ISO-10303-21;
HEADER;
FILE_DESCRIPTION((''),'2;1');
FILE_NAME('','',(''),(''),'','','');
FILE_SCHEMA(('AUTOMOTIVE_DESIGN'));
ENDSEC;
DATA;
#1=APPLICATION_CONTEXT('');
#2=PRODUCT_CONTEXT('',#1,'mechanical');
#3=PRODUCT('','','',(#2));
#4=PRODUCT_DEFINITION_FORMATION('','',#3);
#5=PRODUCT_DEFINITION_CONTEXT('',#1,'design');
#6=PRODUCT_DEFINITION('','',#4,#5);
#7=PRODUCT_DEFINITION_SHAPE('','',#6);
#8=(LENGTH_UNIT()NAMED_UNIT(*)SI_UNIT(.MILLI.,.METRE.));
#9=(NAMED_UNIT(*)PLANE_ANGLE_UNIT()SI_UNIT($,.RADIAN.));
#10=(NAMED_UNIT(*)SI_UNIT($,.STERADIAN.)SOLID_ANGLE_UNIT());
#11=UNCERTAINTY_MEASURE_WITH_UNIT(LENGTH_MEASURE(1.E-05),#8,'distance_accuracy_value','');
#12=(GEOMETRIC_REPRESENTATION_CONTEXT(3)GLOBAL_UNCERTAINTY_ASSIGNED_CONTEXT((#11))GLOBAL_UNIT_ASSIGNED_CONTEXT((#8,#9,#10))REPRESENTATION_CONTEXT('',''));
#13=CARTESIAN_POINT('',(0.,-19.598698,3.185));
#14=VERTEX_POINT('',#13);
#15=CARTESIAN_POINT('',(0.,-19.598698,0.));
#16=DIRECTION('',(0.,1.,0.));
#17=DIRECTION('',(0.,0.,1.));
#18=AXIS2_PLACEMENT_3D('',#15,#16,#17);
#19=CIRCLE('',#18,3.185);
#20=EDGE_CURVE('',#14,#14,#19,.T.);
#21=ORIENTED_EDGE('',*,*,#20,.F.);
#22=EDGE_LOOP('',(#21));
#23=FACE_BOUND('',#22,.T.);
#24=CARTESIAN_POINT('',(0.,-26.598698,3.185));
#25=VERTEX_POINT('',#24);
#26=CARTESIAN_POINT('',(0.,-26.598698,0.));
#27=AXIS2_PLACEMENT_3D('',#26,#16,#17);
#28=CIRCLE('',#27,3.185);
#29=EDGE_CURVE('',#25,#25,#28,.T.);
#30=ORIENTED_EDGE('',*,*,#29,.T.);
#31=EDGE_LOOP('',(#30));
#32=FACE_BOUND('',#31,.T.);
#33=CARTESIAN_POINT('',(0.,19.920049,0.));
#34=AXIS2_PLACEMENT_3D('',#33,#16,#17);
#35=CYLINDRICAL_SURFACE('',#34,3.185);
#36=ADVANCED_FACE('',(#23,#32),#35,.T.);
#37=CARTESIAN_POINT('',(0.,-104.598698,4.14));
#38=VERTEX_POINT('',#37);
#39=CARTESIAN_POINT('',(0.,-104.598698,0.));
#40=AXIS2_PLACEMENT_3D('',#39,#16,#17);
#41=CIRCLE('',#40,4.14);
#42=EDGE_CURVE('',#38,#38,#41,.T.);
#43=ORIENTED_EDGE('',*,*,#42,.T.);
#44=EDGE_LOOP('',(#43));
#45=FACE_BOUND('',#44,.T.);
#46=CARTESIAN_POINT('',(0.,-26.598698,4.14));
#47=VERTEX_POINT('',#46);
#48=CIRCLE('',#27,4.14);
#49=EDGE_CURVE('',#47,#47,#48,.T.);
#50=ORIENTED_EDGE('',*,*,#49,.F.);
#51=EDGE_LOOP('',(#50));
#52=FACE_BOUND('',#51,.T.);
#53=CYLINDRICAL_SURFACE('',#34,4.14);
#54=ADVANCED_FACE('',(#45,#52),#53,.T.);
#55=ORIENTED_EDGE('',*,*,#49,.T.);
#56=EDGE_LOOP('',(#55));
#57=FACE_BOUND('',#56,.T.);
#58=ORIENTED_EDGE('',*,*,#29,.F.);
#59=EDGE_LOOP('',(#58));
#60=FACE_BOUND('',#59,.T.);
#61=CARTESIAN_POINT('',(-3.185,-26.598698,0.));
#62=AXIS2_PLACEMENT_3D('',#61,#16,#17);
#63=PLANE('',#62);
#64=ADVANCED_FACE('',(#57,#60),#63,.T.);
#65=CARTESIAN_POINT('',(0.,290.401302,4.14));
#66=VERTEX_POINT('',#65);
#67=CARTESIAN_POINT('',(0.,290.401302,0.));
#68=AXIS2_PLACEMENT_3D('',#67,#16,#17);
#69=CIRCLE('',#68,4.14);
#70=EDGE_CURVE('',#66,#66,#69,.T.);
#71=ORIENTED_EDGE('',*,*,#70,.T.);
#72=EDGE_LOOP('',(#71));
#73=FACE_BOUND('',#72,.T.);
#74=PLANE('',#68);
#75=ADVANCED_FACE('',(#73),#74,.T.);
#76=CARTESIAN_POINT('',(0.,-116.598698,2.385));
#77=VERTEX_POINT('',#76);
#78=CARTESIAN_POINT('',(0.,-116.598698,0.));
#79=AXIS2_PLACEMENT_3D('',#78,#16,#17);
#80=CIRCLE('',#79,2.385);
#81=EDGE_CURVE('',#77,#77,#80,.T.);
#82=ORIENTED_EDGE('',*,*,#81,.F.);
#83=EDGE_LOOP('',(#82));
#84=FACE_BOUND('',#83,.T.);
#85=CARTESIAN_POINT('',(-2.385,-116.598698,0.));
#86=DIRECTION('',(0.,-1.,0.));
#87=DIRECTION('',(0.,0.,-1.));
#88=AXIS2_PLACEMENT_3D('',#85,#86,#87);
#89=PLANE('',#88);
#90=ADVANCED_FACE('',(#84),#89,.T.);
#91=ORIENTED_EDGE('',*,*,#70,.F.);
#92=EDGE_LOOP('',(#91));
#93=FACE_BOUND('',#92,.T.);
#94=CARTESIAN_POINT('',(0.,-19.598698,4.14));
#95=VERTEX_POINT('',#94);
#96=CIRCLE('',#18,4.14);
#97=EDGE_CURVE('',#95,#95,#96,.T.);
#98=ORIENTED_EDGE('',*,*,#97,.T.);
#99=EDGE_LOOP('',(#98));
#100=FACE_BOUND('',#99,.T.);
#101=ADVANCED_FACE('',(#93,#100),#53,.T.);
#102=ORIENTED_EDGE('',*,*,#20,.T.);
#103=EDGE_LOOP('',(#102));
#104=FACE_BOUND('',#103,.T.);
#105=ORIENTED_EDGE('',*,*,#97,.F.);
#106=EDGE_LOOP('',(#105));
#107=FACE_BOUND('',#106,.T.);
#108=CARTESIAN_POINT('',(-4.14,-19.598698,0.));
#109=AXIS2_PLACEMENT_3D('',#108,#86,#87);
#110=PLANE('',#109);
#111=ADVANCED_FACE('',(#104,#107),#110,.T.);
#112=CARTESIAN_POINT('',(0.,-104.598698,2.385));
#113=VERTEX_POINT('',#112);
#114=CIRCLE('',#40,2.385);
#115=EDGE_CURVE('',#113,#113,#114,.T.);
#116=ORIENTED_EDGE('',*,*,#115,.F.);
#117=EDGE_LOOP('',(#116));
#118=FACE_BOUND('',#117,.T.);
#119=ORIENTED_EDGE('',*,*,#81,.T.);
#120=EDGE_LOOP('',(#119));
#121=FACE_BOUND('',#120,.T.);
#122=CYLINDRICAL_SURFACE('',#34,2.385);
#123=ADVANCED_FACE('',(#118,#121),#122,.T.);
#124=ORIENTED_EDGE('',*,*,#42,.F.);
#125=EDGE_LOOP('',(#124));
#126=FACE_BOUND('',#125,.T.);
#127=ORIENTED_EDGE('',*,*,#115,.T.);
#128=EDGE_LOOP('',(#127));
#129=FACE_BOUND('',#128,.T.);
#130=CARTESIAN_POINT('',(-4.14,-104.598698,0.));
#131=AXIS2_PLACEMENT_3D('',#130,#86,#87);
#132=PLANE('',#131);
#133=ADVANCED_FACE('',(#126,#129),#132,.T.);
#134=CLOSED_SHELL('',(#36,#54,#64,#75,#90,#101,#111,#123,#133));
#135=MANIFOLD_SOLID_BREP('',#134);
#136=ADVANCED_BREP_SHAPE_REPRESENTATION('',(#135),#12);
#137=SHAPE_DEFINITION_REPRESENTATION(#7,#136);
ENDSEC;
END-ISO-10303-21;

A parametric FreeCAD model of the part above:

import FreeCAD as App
import Part
import Sketcher

V = App.Vector
Q = App.Units.Quantity

doc = App.newDocument("Part")
body = doc.addObject("PartDesign::Body", "Body")

sketch1 = body.newObject("Sketcher::SketchObject", "Sketch")
sketch1.AttachmentSupport = (doc.getObject("XY_Plane"), [""])
sketch1.MapMode = "FlatFace"
sketch1.addGeometry([
    Part.LineSegment(V(0, 290.4, 0), V(-4.1, 290.4, 0)),
    Part.LineSegment(V(-4.1, 290.4, 0), V(-4.1, -19.6, 0)),
    Part.LineSegment(V(-4.1, -19.6, 0), V(-3.2, -19.6, 0)),
    Part.LineSegment(V(-3.2, -19.6, 0), V(-3.2, -26.6, 0)),
    Part.LineSegment(V(-3.2, -26.6, 0), V(-4.1, -26.6, 0)),
    Part.LineSegment(V(-4.1, -26.6, 0), V(-4.1, -104.6, 0)),
    Part.LineSegment(V(-4.1, -104.6, 0), V(-2.4, -104.6, 0)),
    Part.LineSegment(V(-2.4, -104.6, 0), V(-2.4, -116.6, 0)),
    Part.LineSegment(V(-2.4, -116.6, 0), V(0, -116.6, 0)),
    Part.LineSegment(V(0, -116.6, 0), V(0, 290.4, 0)),
], False)
sketch1.addConstraint([
    Sketcher.Constraint("Coincident", 0, 2, 1, 1),
    Sketcher.Constraint("Coincident", 1, 2, 2, 1),
    Sketcher.Constraint("Coincident", 2, 2, 3, 1),
    Sketcher.Constraint("Coincident", 3, 2, 4, 1),
    Sketcher.Constraint("Coincident", 4, 2, 5, 1),
    Sketcher.Constraint("Coincident", 5, 2, 6, 1),
    Sketcher.Constraint("Coincident", 6, 2, 7, 1),
    Sketcher.Constraint("Coincident", 7, 2, 8, 1),
    Sketcher.Constraint("Coincident", 8, 2, 9, 1),
    Sketcher.Constraint("Coincident", 9, 2, 0, 1),
    Sketcher.Constraint("Horizontal", 0),
    Sketcher.Constraint("Vertical", 1),
    Sketcher.Constraint("Horizontal", 2),
    Sketcher.Constraint("Vertical", 3),
    Sketcher.Constraint("Horizontal", 4),
    Sketcher.Constraint("Vertical", 5),
    Sketcher.Constraint("Horizontal", 6),
    Sketcher.Constraint("Vertical", 7),
    Sketcher.Constraint("Horizontal", 8),
    Sketcher.Constraint("Vertical", 9),
    Sketcher.Constraint("PointOnObject", 8, 2, -2),
    Sketcher.Constraint("Vertical", 1, 2, 4, 2),
    Sketcher.Constraint("DistanceY", 1, 2, 1, 1, Q("310 mm")),
    Sketcher.Constraint("DistanceY", 3, 2, 3, 1, Q("7 mm")),
    Sketcher.Constraint("DistanceY", 5, 2, 5, 1, Q("78 mm")),
    Sketcher.Constraint("DistanceY", 7, 2, 7, 1, Q("12 mm")),
    Sketcher.Constraint("DistanceX", 0, 2, 0, 1, Q("4.14 mm")),
    Sketcher.Constraint("DistanceX", 3, 2, 6, 2, Q("0.8 mm")),
    Sketcher.Constraint("DistanceX", 2, 1, 2, 2, Q("0.955 mm")),
    Sketcher.Constraint("DistanceY", -1, 1, 0, 2, Q("290.401302 mm")),
])
revolution = body.newObject("PartDesign::Revolution", "Revolution")
revolution.Profile = sketch1
revolution.ReferenceAxis = (sketch1, ["V_Axis"])
revolution.Angle = 360

doc.recompute()
